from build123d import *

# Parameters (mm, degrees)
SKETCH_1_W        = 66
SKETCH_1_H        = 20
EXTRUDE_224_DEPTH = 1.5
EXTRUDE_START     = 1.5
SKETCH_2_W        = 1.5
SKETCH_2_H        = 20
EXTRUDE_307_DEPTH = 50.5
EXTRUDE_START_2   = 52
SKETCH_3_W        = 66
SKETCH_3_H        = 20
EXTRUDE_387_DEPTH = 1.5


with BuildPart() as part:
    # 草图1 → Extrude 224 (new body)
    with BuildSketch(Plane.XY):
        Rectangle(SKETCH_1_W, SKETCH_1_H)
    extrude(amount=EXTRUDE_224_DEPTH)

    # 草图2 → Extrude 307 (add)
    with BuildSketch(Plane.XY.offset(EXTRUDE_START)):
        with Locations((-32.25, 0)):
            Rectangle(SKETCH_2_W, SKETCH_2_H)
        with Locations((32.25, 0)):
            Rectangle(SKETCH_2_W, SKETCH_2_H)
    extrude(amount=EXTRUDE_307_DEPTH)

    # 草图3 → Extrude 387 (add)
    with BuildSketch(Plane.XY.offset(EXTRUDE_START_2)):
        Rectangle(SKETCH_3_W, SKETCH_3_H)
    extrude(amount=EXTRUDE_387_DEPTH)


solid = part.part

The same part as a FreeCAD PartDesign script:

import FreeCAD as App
import Part
import Sketcher

V = App.Vector
Q = App.Units.Quantity


def add_polygon(sketch, points):
    """Adds a closed chain of lines whose ends are joined by coincident constraints."""
    first, n = sketch.GeometryCount, len(points)
    for a, b in zip(points, points[1:] + points[:1]):
        sketch.addGeometry(Part.LineSegment(App.Vector(*a, 0), App.Vector(*b, 0)), False)
    for i in range(n):
        sketch.addConstraint(Sketcher.Constraint("Coincident", first + i, 2, first + (i + 1) % n, 1))

doc = App.newDocument("Part")
body = doc.addObject("PartDesign::Body", "Body")

# Sketch on XY plane
sketch1 = body.newObject("Sketcher::SketchObject", "Sketch")
sketch1.AttachmentSupport = (doc.getObject("XY_Plane"), [""])
sketch1.MapMode = "FlatFace"
add_polygon(sketch1, [(-33, 10), (-33, -10), (33, -10), (33, 10)])  # lines 0-3
sketch1.addConstraint([
    Sketcher.Constraint("Vertical", 0),
    Sketcher.Constraint("Horizontal", 1),
    Sketcher.Constraint("Vertical", 2),
    Sketcher.Constraint("Horizontal", 3),
    Sketcher.Constraint("Symmetric", 0, 2, 2, 2, -1, 1),
    Sketcher.Constraint("DistanceX", 1, 1, 1, 2, Q("66 mm")),
    Sketcher.Constraint("DistanceY", 0, 2, 0, 1, Q("20 mm")),
])
pad1 = body.newObject("PartDesign::Pad", "Pad")
pad1.Profile = sketch1
pad1.Length = 1.5

# Sketch on XY plane
sketch2 = body.newObject("Sketcher::SketchObject", "Sketch001")
sketch2.AttachmentSupport = (doc.getObject("XY_Plane"), [""])
sketch2.MapMode = "FlatFace"
sketch2.AttachmentOffset = App.Placement(V(0, 0, 1.5), App.Rotation())
add_polygon(sketch2, [(-33, 10), (-33, -10), (-31.5, -10), (-31.5, 10)])  # lines 0-3
add_polygon(sketch2, [(31.5, 10), (31.5, -10), (33, -10), (33, 10)])  # lines 4-7
sketch2.addConstraint([
    Sketcher.Constraint("Vertical", 0),
    Sketcher.Constraint("Horizontal", 1),
    Sketcher.Constraint("Vertical", 2),
    Sketcher.Constraint("Horizontal", 3),
    Sketcher.Constraint("Vertical", 4),
    Sketcher.Constraint("Horizontal", 5),
    Sketcher.Constraint("Vertical", 6),
    Sketcher.Constraint("Horizontal", 7),
    Sketcher.Constraint("Symmetric", 2, 2, 4, 2, -1, 1),
    Sketcher.Constraint("Symmetric", 0, 2, 6, 2, -1, 1),
    Sketcher.Constraint("Horizontal", 1, 2, 4, 2),
    Sketcher.Constraint("DistanceY", 0, 2, 0, 1, Q("20 mm")),
    Sketcher.Constraint("DistanceX", 1, 1, 1, 2, Q("1.5 mm")),
    Sketcher.Constraint("DistanceX", 0, 2, -1, 1, Q("33 mm")),
])
pad2 = body.newObject("PartDesign::Pad", "Pad001")
pad2.Profile = sketch2
pad2.Length = 50.5

# Sketch on XY plane
sketch3 = body.newObject("Sketcher::SketchObject", "Sketch002")
sketch3.AttachmentSupport = (doc.getObject("XY_Plane"), [""])
sketch3.MapMode = "FlatFace"
sketch3.AttachmentOffset = App.Placement(V(0, 0, 52), App.Rotation())
add_polygon(sketch3, [(-33, 10), (-33, -10), (33, -10), (33, 10)])  # lines 0-3
sketch3.addConstraint([
    Sketcher.Constraint("Vertical", 0),
    Sketcher.Constraint("Horizontal", 1),
    Sketcher.Constraint("Vertical", 2),
    Sketcher.Constraint("Horizontal", 3),
    Sketcher.Constraint("Symmetric", 0, 2, 2, 2, -1, 1),
    Sketcher.Constraint("DistanceX", 1, 1, 1, 2, Q("66 mm")),
    Sketcher.Constraint("DistanceY", 0, 2, 0, 1, Q("20 mm")),
])
pad3 = body.newObject("PartDesign::Pad", "Pad002")
pad3.Profile = sketch3
pad3.Length = 1.5

doc.recompute()
